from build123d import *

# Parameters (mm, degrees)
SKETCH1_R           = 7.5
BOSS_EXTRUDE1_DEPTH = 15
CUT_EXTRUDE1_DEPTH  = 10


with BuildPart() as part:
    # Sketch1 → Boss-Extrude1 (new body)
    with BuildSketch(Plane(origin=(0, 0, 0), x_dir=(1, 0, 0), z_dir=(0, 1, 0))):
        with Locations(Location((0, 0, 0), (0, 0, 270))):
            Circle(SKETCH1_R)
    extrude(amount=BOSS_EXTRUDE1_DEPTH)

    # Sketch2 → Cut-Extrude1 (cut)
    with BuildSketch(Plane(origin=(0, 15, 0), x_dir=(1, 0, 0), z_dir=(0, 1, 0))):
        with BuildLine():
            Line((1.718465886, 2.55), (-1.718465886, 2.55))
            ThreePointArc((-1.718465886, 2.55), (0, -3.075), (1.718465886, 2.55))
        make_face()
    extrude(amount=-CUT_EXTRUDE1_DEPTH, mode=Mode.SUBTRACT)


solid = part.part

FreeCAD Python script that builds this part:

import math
import FreeCAD as App
import Part
import Sketcher
from FreeCAD import Vector
Q = App.Units.Quantity

doc = App.newDocument("Part")
params = doc.addObject("Spreadsheet::Sheet", "Params")
for row, (alias, value) in enumerate([
    ("sketch1_diameter", "15 mm"),
    ("pad1_length", "15 mm"),
    ("pocket1_length", "10 mm"),
], start=1):
    params.set(f"A{row}", alias)
    params.set(f"B{row}", "=" + value)
    params.setAlias(f"B{row}", alias)

body = doc.addObject("PartDesign::Body", "Body")

sketch1 = body.newObject("Sketcher::SketchObject", "Sketch")
sketch1.AttachmentSupport = (doc.getObject("XZ_Plane"), [""])
sketch1.MapMode = "FlatFace"
sketch1.addGeometry(Part.Circle(Vector(0, 0, 0), Vector(0, 0, 1), 7.5), False)
sketch1.addConstraint(Sketcher.Constraint("Coincident", 0, 3, -1, 1))
sketch1.addConstraint(Sketcher.Constraint("Diameter", 0, Q("15 mm")))
sketch1.setExpression("Constraints[1]", "Params.sketch1_diameter")
pad1 = body.newObject("PartDesign::Pad", "Pad")
pad1.Profile = sketch1
pad1.setExpression("Length", "Params.pad1_length")
pad1.Reversed = True

sketch2 = body.newObject("Sketcher::SketchObject", "Sketch001")
sketch2.AttachmentSupport = (doc.getObject("XZ_Plane"), [""])
sketch2.MapMode = "FlatFace"
sketch2.AttachmentOffset = App.Placement(Vector(0, 0, -15), App.Rotation())
sketch2.addGeometry(Part.LineSegment(Vector(1.718466, -2.55, 0), Vector(-1.718466, -2.55, 0)), False)
sketch2.addGeometry(Part.ArcOfCircle(Part.Circle(Vector(0, 0, 0), Vector(0, 0, 1), 3.075), math.radians(-56.023647), math.radians(236.023647)), False)
sketch2.addConstraint(Sketcher.Constraint("Coincident", 0, 1, 1, 1))
sketch2.addConstraint(Sketcher.Constraint("Coincident", 1, 2, 0, 2))
sketch2.addConstraint(Sketcher.Constraint("Horizontal", 0))
sketch2.addConstraint(Sketcher.Constraint("Coincident", 1, 3, -1, 1))
sketch2.addConstraint(Sketcher.Constraint("Radius", 1, Q("3.075 mm")))
sketch2.addConstraint(Sketcher.Constraint("DistanceY", 0, 1, -1, 1, Q("2.55 mm")))
pocket1 = body.newObject("PartDesign::Pocket", "Pocket")
pocket1.Profile = sketch2
pocket1.setExpression("Length", "Params.pocket1_length")
pocket1.Reversed = True

doc.recompute()
